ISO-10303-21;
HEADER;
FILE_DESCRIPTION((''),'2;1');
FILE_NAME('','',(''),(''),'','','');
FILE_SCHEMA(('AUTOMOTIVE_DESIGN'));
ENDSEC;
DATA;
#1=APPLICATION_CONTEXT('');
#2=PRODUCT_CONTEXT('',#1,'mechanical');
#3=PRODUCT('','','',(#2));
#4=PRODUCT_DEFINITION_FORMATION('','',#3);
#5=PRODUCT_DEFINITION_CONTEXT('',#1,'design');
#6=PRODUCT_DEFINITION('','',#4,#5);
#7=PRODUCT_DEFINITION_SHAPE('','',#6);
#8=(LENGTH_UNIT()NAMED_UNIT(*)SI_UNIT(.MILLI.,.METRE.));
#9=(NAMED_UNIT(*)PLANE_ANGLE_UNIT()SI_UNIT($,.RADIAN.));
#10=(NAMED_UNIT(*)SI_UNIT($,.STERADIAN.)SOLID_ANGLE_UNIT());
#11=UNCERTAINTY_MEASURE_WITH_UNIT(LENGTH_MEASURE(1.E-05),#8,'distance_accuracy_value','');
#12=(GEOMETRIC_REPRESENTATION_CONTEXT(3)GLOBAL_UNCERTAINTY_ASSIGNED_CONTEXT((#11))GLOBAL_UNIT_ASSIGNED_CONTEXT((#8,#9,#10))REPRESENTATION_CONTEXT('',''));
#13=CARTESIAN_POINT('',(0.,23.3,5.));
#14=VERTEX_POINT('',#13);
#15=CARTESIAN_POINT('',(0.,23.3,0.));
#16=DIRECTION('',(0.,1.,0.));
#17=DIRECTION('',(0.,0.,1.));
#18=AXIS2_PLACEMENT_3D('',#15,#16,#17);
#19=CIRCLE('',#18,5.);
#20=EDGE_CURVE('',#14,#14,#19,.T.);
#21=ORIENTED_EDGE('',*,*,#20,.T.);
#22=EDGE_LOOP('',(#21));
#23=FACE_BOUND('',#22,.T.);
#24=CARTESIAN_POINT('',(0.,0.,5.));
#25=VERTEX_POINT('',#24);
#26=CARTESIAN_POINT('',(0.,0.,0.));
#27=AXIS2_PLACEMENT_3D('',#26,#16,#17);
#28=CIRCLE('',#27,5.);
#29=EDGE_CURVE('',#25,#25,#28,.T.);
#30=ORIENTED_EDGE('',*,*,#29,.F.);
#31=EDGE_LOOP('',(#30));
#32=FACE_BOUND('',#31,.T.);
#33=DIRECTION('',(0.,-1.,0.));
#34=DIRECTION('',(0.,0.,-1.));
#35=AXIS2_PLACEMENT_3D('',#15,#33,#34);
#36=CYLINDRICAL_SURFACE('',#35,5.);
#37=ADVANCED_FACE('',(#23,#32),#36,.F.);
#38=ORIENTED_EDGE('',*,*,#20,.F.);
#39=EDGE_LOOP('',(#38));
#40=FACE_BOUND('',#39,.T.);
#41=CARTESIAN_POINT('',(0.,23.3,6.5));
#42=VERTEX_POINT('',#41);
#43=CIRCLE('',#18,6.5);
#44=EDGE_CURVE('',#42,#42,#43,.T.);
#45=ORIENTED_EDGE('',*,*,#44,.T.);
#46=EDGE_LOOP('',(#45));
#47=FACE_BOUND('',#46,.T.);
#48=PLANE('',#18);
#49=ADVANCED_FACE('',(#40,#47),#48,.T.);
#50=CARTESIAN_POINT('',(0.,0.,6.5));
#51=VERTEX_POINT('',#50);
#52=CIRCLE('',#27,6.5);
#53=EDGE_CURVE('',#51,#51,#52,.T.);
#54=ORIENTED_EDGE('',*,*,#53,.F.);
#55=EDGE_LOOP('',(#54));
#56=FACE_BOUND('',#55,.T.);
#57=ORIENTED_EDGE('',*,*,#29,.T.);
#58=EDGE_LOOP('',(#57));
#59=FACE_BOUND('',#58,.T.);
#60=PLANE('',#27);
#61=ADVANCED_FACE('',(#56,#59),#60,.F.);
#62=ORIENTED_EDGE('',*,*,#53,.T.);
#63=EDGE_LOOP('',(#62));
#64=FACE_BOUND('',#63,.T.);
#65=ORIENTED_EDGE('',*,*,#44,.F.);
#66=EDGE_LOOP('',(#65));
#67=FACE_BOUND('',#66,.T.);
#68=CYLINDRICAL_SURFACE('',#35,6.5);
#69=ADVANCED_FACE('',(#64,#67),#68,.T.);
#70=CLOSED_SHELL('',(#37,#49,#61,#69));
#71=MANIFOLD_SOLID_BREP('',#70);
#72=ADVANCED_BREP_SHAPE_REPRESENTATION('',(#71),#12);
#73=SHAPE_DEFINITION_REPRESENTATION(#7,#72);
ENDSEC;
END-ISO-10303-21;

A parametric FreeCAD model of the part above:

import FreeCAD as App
import Part
import Sketcher

V = App.Vector
Q = App.Units.Quantity

doc = App.newDocument("Part")
body = doc.addObject("PartDesign::Body", "Body")

# Sketch on XZ plane
sketch1 = body.newObject("Sketcher::SketchObject", "Sketch")
sketch1.AttachmentSupport = (doc.getObject("XZ_Plane"), [""])
sketch1.MapMode = "FlatFace"
sketch1.addGeometry([
    Part.Circle(V(0, 0, 0), V(0, 0, 1), 6),
    Part.Circle(V(0, 0, 0), V(0, 0, 1), 5),
], False)
sketch1.addConstraint([
    Sketcher.Constraint("Coincident", 0, 3, -1, 1),
    Sketcher.Constraint("Coincident", 1, 3, -1, 1),
    Sketcher.Constraint("Diameter", 0, Q("13 mm")),
    Sketcher.Constraint("Diameter", 1, Q("10 mm")),
])
pad1 = body.newObject("PartDesign::Pad", "Pad")
pad1.Profile = sketch1
pad1.Length = 23.3
pad1.Reversed = True

doc.recompute()
